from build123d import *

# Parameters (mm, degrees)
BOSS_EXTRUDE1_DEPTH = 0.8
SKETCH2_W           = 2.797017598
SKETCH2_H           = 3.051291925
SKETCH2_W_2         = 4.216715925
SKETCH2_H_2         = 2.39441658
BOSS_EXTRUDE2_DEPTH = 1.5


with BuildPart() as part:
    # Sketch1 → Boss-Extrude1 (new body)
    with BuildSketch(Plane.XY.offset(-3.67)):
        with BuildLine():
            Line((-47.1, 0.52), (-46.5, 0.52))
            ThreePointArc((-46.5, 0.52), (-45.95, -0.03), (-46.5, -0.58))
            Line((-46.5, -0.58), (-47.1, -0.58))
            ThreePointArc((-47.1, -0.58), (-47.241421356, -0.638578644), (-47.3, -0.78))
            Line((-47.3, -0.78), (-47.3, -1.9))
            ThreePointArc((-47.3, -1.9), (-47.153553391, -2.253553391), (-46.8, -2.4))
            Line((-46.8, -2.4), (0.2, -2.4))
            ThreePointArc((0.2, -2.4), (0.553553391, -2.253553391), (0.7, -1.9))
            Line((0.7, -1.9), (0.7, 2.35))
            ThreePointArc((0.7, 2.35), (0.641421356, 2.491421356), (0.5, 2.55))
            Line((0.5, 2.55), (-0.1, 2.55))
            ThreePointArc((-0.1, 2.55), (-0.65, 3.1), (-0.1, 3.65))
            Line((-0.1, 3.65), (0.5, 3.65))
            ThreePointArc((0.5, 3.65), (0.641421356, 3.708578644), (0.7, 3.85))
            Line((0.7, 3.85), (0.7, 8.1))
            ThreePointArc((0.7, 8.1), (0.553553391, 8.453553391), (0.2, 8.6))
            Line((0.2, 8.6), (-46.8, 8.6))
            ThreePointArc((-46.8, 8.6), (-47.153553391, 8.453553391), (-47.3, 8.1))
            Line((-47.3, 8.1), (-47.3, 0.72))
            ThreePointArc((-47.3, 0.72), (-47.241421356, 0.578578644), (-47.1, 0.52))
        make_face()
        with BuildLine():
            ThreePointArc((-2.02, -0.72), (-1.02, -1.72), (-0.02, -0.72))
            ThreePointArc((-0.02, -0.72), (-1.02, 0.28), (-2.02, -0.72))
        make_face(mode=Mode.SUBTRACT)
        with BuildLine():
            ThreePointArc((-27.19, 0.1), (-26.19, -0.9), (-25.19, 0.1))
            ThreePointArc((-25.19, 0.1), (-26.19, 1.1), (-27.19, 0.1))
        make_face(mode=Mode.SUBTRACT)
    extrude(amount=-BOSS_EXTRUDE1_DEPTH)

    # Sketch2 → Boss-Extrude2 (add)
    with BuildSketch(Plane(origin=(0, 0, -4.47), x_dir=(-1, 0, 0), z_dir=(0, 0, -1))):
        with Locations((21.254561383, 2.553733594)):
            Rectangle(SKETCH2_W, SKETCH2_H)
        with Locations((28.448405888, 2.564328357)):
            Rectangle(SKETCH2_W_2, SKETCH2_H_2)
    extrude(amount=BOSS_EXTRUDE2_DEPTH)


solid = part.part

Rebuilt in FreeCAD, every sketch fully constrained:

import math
import FreeCAD as App
import Part
import Sketcher

V = App.Vector

doc = App.newDocument("Part")
body = doc.addObject("PartDesign::Body", "Body")

sketch1 = doc.addObject("Sketcher::SketchObject", "Sketch")
body.addObject(sketch1)
sketch1.AttachmentSupport = (doc.XY_Plane, [""])
sketch1.MapMode = "FlatFace"
sketch1.AttachmentOffset = App.Placement(V(0, 0, -3.67), App.Rotation())
sketch1.addGeometry(Part.LineSegment(V(-47.1, 0.52, 0), V(-46.5, 0.52, 0)), False)
sketch1.addGeometry(Part.ArcOfCircle(Part.Circle(V(-46.5, -0.03, 0), V(0, 0, 1), 0.55), math.radians(-90), math.radians(90)), False)
sketch1.addGeometry(Part.LineSegment(V(-46.5, -0.58, 0), V(-47.1, -0.58, 0)), False)
sketch1.addGeometry(Part.ArcOfCircle(Part.Circle(V(-47.1, -0.78, 0), V(0, 0, 1), 0.2), math.radians(90), math.radians(180)), False)
sketch1.addGeometry(Part.LineSegment(V(-47.3, -0.78, 0), V(-47.3, -1.9, 0)), False)
sketch1.addGeometry(Part.ArcOfCircle(Part.Circle(V(-46.8, -1.9, 0), V(0, 0, 1), 0.5), math.radians(180), math.radians(270)), False)
sketch1.addGeometry(Part.LineSegment(V(-46.8, -2.4, 0), V(0.2, -2.4, 0)), False)
sketch1.addGeometry(Part.ArcOfCircle(Part.Circle(V(0.2, -1.9, 0), V(0, 0, 1), 0.5), math.radians(-90), math.radians(0)), False)
sketch1.addGeometry(Part.LineSegment(V(0.7, -1.9, 0), V(0.7, 2.35, 0)), False)
sketch1.addGeometry(Part.ArcOfCircle(Part.Circle(V(0.5, 2.35, 0), V(0, 0, 1), 0.2), math.radians(0), math.radians(90)), False)
sketch1.addGeometry(Part.LineSegment(V(0.5, 2.55, 0), V(-0.1, 2.55, 0)), False)
sketch1.addGeometry(Part.ArcOfCircle(Part.Circle(V(-0.1, 3.1, 0), V(0, 0, 1), 0.55), math.radians(90), math.radians(270)), False)
sketch1.addGeometry(Part.LineSegment(V(-0.1, 3.65, 0), V(0.5, 3.65, 0)), False)
sketch1.addGeometry(Part.ArcOfCircle(Part.Circle(V(0.5, 3.85, 0), V(0, 0, 1), 0.2), math.radians(-90), math.radians(0)), False)
sketch1.addGeometry(Part.LineSegment(V(0.7, 3.85, 0), V(0.7, 8.1, 0)), False)
sketch1.addGeometry(Part.ArcOfCircle(Part.Circle(V(0.2, 8.1, 0), V(0, 0, 1), 0.5), math.radians(0), math.radians(90)), False)
sketch1.addGeometry(Part.LineSegment(V(0.2, 8.6, 0), V(-46.8, 8.6, 0)), False)
sketch1.addGeometry(Part.ArcOfCircle(Part.Circle(V(-46.8, 8.1, 0), V(0, 0, 1), 0.5), math.radians(90), math.radians(180)), False)
sketch1.addGeometry(Part.LineSegment(V(-47.3, 8.1, 0), V(-47.3, 0.72, 0)), False)
sketch1.addGeometry(Part.ArcOfCircle(Part.Circle(V(-47.1, 0.72, 0), V(0, 0, 1), 0.2), math.radians(-180), math.radians(-90)), False)
sketch1.addGeometry(Part.Circle(V(-1.02, -0.72, 0), V(0, 0, 1), 1), False)
sketch1.addGeometry(Part.Circle(V(-26.19, 0.1, 0), V(0, 0, 1), 1), False)
sketch1.addConstraint(Sketcher.Constraint("Tangent", 0, 2, 1, 2))
sketch1.addConstraint(Sketcher.Constraint("Tangent", 1, 1, 2, 1))
sketch1.addConstraint(Sketcher.Constraint("Tangent", 2, 2, 3, 1))
sketch1.addConstraint(Sketcher.Constraint("Tangent", 3, 2, 4, 1))
sketch1.addConstraint(Sketcher.Constraint("Tangent", 4, 2, 5, 1))
sketch1.addConstraint(Sketcher.Constraint("Tangent", 5, 2, 6, 1))
sketch1.addConstraint(Sketcher.Constraint("Tangent", 6, 2, 7, 1))
sketch1.addConstraint(Sketcher.Constraint("Tangent", 7, 2, 8, 1))
sketch1.addConstraint(Sketcher.Constraint("Tangent", 8, 2, 9, 1))
sketch1.addConstraint(Sketcher.Constraint("Tangent", 9, 2, 10, 1))
sketch1.addConstraint(Sketcher.Constraint("Tangent", 10, 2, 11, 2))
sketch1.addConstraint(Sketcher.Constraint("Tangent", 11, 1, 12, 1))
sketch1.addConstraint(Sketcher.Constraint("Tangent", 12, 2, 13, 1))
sketch1.addConstraint(Sketcher.Constraint("Tangent", 13, 2, 14, 1))
sketch1.addConstraint(Sketcher.Constraint("Tangent", 14, 2, 15, 1))
sketch1.addConstraint(Sketcher.Constraint("Tangent", 15, 2, 16, 1))
sketch1.addConstraint(Sketcher.Constraint("Tangent", 16, 2, 17, 1))
sketch1.addConstraint(Sketcher.Constraint("Tangent", 17, 2, 18, 1))
sketch1.addConstraint(Sketcher.Constraint("Tangent", 18, 2, 19, 1))
sketch1.addConstraint(Sketcher.Constraint("Tangent", 19, 2, 0, 1))
sketch1.addConstraint(Sketcher.Constraint("Horizontal", 0))
sketch1.addConstraint(Sketcher.Constraint("Horizontal", 2))
sketch1.addConstraint(Sketcher.Constraint("Vertical", 4))
sketch1.addConstraint(Sketcher.Constraint("Horizontal", 6))
sketch1.addConstraint(Sketcher.Constraint("Vertical", 8))
sketch1.addConstraint(Sketcher.Constraint("Horizontal", 10))
sketch1.addConstraint(Sketcher.Constraint("Horizontal", 12))
sketch1.addConstraint(Sketcher.Constraint("Vertical", 14))
sketch1.addConstraint(Sketcher.Constraint("Horizontal", 16))
sketch1.addConstraint(Sketcher.Constraint("Vertical", 18))
sketch1.addConstraint(Sketcher.Constraint("Equal", 5, 7))
sketch1.addConstraint(Sketcher.Constraint("Equal", 3, 9))
sketch1.addConstraint(Sketcher.Constraint("Equal", 1, 11))
sketch1.addConstraint(Sketcher.Constraint("Equal", 9, 13))
sketch1.addConstraint(Sketcher.Constraint("Equal", 7, 15))
sketch1.addConstraint(Sketcher.Constraint("Equal", 15, 17))
sketch1.addConstraint(Sketcher.Constraint("Equal", 13, 19))
sketch1.addConstraint(Sketcher.Constraint("Equal", 20, 21))
sketch1.addConstraint(Sketcher.Constraint("Vertical", 9, 3, 13, 3))
sketch1.addConstraint(Sketcher.Constraint("Vertical", 5, 3, 17, 3))
sketch1.addConstraint(Sketcher.Constraint("Equal", 2, 10))
sketch1.addConstraint(Sketcher.Constraint("Equal", 8, 14))
sketch1.addConstraint(Sketcher.Constraint("Diameter", 20, 2.0))
sketch1.addConstraint(Sketcher.Constraint("Radius", 3, 0.2))
sketch1.addConstraint(Sketcher.Constraint("Radius", 5, 0.5))
sketch1.addConstraint(Sketcher.Constraint("DistanceX", 6, 1, 6, 2, 47.0))
sketch1.addConstraint(Sketcher.Constraint("Radius", 1, 0.55))
sketch1.addConstraint(Sketcher.Constraint("DistanceX", 0, 1, 0, 2, 0.6))
sketch1.addConstraint(Sketcher.Constraint("DistanceY", 7, 3, 11, 3, 5.0))
sketch1.addConstraint(Sketcher.Constraint("DistanceY", 5, 3, 21, 3, 2.0))
sketch1.addConstraint(Sketcher.Constraint("DistanceY", 4, 2, 4, 1, 1.12))
sketch1.addConstraint(Sketcher.Constraint("DistanceX", 1, 3, -1, 1, 46.5))
sketch1.addConstraint(Sketcher.Constraint("DistanceY", 5, 3, -1, 1, 1.9))
sketch1.addConstraint(Sketcher.Constraint("DistanceX", 20, 3, -1, 1, 1.02))
sketch1.addConstraint(Sketcher.Constraint("DistanceY", 20, 3, -1, 1, 0.72))
sketch1.addConstraint(Sketcher.Constraint("DistanceX", 21, 3, -1, 1, 26.19))
pad1 = doc.addObject("PartDesign::Pad", "Pad")
body.addObject(pad1)
pad1.Profile = sketch1
pad1.Length = 0.8
pad1.Reversed = True

sketch2 = doc.addObject("Sketcher::SketchObject", "Sketch001")
body.addObject(sketch2)
sketch2.AttachmentSupport = (doc.XY_Plane, [""])
sketch2.MapMode = "FlatFace"
sketch2.AttachmentOffset = App.Placement(V(0, 0, -4.47), App.Rotation())
sketch2.addGeometry(Part.LineSegment(V(-19.9, 4.1, 0), V(-19.9, 1, 0)), False)
sketch2.addGeometry(Part.LineSegment(V(-19.9, 1, 0), V(-22.7, 1, 0)), False)
sketch2.addGeometry(Part.LineSegment(V(-22.7, 1, 0), V(-22.7, 4.1, 0)), False)
sketch2.addGeometry(Part.LineSegment(V(-22.7, 4.1, 0), V(-19.9, 4.1, 0)), False)
sketch2.addGeometry(Part.LineSegment(V(-26.3, 3.8, 0), V(-26.3, 1.4, 0)), False)
sketch2.addGeometry(Part.LineSegment(V(-26.3, 1.4, 0), V(-30.6, 1.4, 0)), False)
sketch2.addGeometry(Part.LineSegment(V(-30.6, 1.4, 0), V(-30.6, 3.8, 0)), False)
sketch2.addGeometry(Part.LineSegment(V(-30.6, 3.8, 0), V(-26.3, 3.8, 0)), False)
sketch2.addConstraint(Sketcher.Constraint("Coincident", 0, 2, 1, 1))
sketch2.addConstraint(Sketcher.Constraint("Coincident", 1, 2, 2, 1))
sketch2.addConstraint(Sketcher.Constraint("Coincident", 2, 2, 3, 1))
sketch2.addConstraint(Sketcher.Constraint("Coincident", 3, 2, 0, 1))
sketch2.addConstraint(Sketcher.Constraint("Coincident", 4, 2, 5, 1))
sketch2.addConstraint(Sketcher.Constraint("Coincident", 5, 2, 6, 1))
sketch2.addConstraint(Sketcher.Constraint("Coincident", 6, 2, 7, 1))
sketch2.addConstraint(Sketcher.Constraint("Coincident", 7, 2, 4, 1))
sketch2.addConstraint(Sketcher.Constraint("Vertical", 0))
sketch2.addConstraint(Sketcher.Constraint("Horizontal", 1))
sketch2.addConstraint(Sketcher.Constraint("Vertical", 2))
sketch2.addConstraint(Sketcher.Constraint("Horizontal", 3))
sketch2.addConstraint(Sketcher.Constraint("Vertical", 4))
sketch2.addConstraint(Sketcher.Constraint("Horizontal", 5))
sketch2.addConstraint(Sketcher.Constraint("Vertical", 6))
sketch2.addConstraint(Sketcher.Constraint("Horizontal", 7))
sketch2.addConstraint(Sketcher.Constraint("DistanceY", 0, 2, 0, 1, 3.051292))
sketch2.addConstraint(Sketcher.Constraint("DistanceX", 1, 2, 1, 1, 2.797018))
sketch2.addConstraint(Sketcher.Constraint("DistanceX", 5, 2, 5, 1, 4.216716))
sketch2.addConstraint(Sketcher.Constraint("DistanceY", 4, 2, 4, 1, 2.394417))
sketch2.addConstraint(Sketcher.Constraint("DistanceX", 1, 2, -1, 1, 22.65307))
sketch2.addConstraint(Sketcher.Constraint("DistanceY", -1, 1, 2, 2, 4.07938))
sketch2.addConstraint(Sketcher.Constraint("DistanceY", -1, 1, 4, 2, 1.36712))
sketch2.addConstraint(Sketcher.Constraint("DistanceX", 5, 2, 0, 2, 10.700711))
pad2 = doc.addObject("PartDesign::Pad", "Pad001")
body.addObject(pad2)
pad2.Profile = sketch2
pad2.Length = 1.5
pad2.Reversed = True

doc.recompute()
